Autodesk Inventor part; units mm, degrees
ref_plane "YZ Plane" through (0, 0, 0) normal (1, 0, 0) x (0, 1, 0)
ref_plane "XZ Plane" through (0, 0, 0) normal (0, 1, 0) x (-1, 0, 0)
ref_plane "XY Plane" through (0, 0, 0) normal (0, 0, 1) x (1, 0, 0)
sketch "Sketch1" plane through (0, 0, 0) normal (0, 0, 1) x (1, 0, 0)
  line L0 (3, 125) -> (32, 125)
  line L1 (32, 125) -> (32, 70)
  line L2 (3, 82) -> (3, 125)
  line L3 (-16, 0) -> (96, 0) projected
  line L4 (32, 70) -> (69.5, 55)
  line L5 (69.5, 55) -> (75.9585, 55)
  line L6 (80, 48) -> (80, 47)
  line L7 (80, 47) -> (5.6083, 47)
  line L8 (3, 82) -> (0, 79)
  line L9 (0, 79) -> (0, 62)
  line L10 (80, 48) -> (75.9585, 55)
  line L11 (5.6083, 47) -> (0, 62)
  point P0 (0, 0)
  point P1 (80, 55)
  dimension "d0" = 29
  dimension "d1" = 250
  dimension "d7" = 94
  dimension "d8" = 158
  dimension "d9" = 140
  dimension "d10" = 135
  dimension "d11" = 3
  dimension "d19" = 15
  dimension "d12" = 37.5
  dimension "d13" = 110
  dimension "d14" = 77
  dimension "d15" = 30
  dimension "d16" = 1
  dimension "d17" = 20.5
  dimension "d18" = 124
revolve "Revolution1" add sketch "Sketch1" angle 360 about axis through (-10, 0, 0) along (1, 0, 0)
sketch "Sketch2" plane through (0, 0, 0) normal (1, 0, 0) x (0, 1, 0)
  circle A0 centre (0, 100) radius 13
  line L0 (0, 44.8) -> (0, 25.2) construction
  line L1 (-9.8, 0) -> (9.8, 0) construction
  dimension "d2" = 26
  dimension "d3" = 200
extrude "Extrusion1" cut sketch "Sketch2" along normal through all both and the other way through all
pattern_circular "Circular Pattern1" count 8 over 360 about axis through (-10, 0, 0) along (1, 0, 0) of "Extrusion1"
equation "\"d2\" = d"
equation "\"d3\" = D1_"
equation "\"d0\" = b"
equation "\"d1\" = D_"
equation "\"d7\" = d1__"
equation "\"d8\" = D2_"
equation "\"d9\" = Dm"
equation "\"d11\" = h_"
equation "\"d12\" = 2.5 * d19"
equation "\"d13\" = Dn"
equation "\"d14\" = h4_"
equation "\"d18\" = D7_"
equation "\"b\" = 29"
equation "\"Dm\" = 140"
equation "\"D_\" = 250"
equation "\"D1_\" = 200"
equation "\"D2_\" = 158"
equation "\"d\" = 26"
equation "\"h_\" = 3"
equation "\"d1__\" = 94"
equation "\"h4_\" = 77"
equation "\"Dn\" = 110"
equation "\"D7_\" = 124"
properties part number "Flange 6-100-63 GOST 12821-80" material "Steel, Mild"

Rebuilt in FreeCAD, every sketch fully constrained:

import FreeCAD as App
import Part
import Sketcher

V = App.Vector
Q = App.Units.Quantity


def add_polygon(sketch, points):
    """Adds a closed chain of lines whose ends are joined by coincident constraints."""
    first, n = sketch.GeometryCount, len(points)
    for a, b in zip(points, points[1:] + points[:1]):
        sketch.addGeometry(Part.LineSegment(App.Vector(*a, 0), App.Vector(*b, 0)), False)
    for i in range(n):
        sketch.addConstraint(Sketcher.Constraint("Coincident", first + i, 2, first + (i + 1) % n, 1))

doc = App.newDocument("Part")
body = doc.addObject("PartDesign::Body", "Body")

# Sketch on XY plane
sketch1 = body.newObject("Sketcher::SketchObject", "Sketch")
sketch1.AttachmentSupport = (doc.getObject("XY_Plane"), [""])
sketch1.MapMode = "FlatFace"
add_polygon(sketch1, [(32, 125), (3, 125), (3, 82), (0, 79), (0, 62), (5.6083, 47), (80, 47), (80, 48), (75.9585, 55), (69.5, 55), (32, 70)])  # lines 0-10
sketch1.addConstraint([
    Sketcher.Constraint("Horizontal", 0),
    Sketcher.Constraint("Vertical", 1),
    Sketcher.Constraint("Vertical", 3),
    Sketcher.Constraint("Horizontal", 5),
    Sketcher.Constraint("Vertical", 6),
    Sketcher.Constraint("Horizontal", 8),
    Sketcher.Constraint("Vertical", 10),
    Sketcher.Constraint("PointOnObject", 2, 2, -2),
    Sketcher.Constraint("DistanceX", 0, 2, 0, 1, Q("29 mm")),
    Sketcher.Constraint("DistanceY", 6, 1, 6, 2, Q("1 mm")),
    Sketcher.Constraint("Angle", 2, Q("-135 deg")),
    Sketcher.Constraint("DistanceX", -1, 1, 0, 2, Q("3 mm")),
    Sketcher.Constraint("DistanceY", 4, 2, 3, 2, Q("15 mm")),
    Sketcher.Constraint("DistanceX", 1, 2, 5, 2, Q("77 mm")),
    Sketcher.Constraint("DistanceY", 8, 2, 9, 2, Q("15 mm")),
    Sketcher.Constraint("DistanceX", 9, 2, 8, 2, Q("37.5 mm")),
    Sketcher.Constraint("DistanceY", 1, 2, 1, 1, Q("43 mm")),
    Sketcher.Constraint("DistanceY", 3, 2, 3, 1, Q("17 mm")),
    Sketcher.Constraint("DistanceY", 10, 1, 10, 2, Q("55 mm")),
    Sketcher.Constraint("Angle", 7, Q("120.0003 deg")),
    Sketcher.Constraint("DistanceY", -1, 1, 0, 2, Q("125 mm")),
    Sketcher.Constraint("Angle", 4, Q("-69.5 deg")),
])
revolution = body.newObject("PartDesign::Revolution", "Revolution")
revolution.Profile = sketch1
revolution.ReferenceAxis = (sketch1, ["H_Axis"])
revolution.Angle = 360

# Sketch on YZ plane
sketch2 = body.newObject("Sketcher::SketchObject", "Sketch001")
sketch2.AttachmentSupport = (doc.getObject("YZ_Plane"), [""])
sketch2.MapMode = "FlatFace"
sketch2.addGeometry(Part.Circle(V(0, 100, 0), V(0, 0, 1), 13), False)
sketch2.addConstraint([
    Sketcher.Constraint("PointOnObject", 0, 3, -2),
    Sketcher.Constraint("Diameter", 0, Q("26 mm")),
    Sketcher.Constraint("DistanceY", -1, 1, 0, 3, Q("100 mm")),
])
pocket1 = body.newObject("PartDesign::Pocket", "Pocket")
pocket1.Profile = sketch2
pocket1.Type = "ThroughAll"
pocket1.Reversed = True
doc.recompute()

polarpattern = body.newObject("PartDesign::PolarPattern", "PolarPattern")
polarpattern.Originals = [pocket1]
polarpattern.Axis = (doc.getObject("X_Axis"), [""])
polarpattern.Angle = 360
polarpattern.Occurrences = 8
body.Tip = polarpattern

doc.recompute()
